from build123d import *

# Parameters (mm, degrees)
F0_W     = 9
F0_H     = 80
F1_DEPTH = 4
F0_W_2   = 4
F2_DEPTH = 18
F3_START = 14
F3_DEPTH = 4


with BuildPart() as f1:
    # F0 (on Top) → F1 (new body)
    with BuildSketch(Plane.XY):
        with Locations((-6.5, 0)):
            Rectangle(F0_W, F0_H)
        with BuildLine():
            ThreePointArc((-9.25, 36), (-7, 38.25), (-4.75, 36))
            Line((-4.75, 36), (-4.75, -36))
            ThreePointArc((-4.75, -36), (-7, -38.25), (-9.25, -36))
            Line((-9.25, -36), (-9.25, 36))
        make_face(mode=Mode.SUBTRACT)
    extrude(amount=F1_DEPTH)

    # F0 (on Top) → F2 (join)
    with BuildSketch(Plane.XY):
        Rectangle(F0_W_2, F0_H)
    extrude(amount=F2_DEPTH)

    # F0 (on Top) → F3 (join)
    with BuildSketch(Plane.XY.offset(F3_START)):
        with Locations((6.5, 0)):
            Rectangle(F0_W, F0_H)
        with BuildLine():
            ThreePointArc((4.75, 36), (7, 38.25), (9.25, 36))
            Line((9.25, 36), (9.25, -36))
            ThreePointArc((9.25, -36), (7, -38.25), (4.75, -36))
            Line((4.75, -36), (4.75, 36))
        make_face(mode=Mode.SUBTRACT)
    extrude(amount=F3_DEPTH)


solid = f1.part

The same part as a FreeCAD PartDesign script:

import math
import FreeCAD as App
import Part
import Sketcher
from FreeCAD import Vector
Q = App.Units.Quantity

doc = App.newDocument("Part")
body = doc.addObject("PartDesign::Body", "Body")

# Sketch on XY plane
sketch1 = body.newObject("Sketcher::SketchObject", "Sketch")
sketch1.AttachmentSupport = (doc.getObject("XY_Plane"), [""])
sketch1.MapMode = "FlatFace"
sketch1.addGeometry([
    Part.LineSegment(Vector(-11, 40, 0), Vector(-11, -40, 0)),  # 0
    Part.LineSegment(Vector(-11, -40, 0), Vector(-2, -40, 0)),  # 1
    Part.LineSegment(Vector(-2, -40, 0), Vector(-2, 40, 0)),  # 2
    Part.LineSegment(Vector(-2, 40, 0), Vector(-11, 40, 0)),  # 3
    Part.LineSegment(Vector(-9.2, -36, 0), Vector(-9.2, 36, 0)),  # 4
    Part.ArcOfCircle(Part.Circle(Vector(-7, 36, 0), Vector(0, 0, 1), 2.2), math.radians(0), math.radians(180)),  # 5
    Part.LineSegment(Vector(-4.8, 36, 0), Vector(-4.8, -36, 0)),  # 6
    Part.ArcOfCircle(Part.Circle(Vector(-7, -36, 0), Vector(0, 0, 1), 2.2), math.radians(180), math.radians(360)),  # 7
], False)
sketch1.addConstraint([
    Sketcher.Constraint("Coincident", 0, 2, 1, 1),
    Sketcher.Constraint("Coincident", 1, 2, 2, 1),
    Sketcher.Constraint("Coincident", 2, 2, 3, 1),
    Sketcher.Constraint("Coincident", 3, 2, 0, 1),
    Sketcher.Constraint("Tangent", 4, 2, 5, 2),
    Sketcher.Constraint("Tangent", 5, 1, 6, 1),
    Sketcher.Constraint("Tangent", 6, 2, 7, 2),
    Sketcher.Constraint("Tangent", 7, 1, 4, 1),
    Sketcher.Constraint("Vertical", 0),
    Sketcher.Constraint("Horizontal", 1),
    Sketcher.Constraint("Vertical", 2),
    Sketcher.Constraint("Horizontal", 3),
    Sketcher.Constraint("Vertical", 4),
    Sketcher.Constraint("Vertical", 6),
    Sketcher.Constraint("DistanceX", 1, 1, 1, 2, Q("9 mm")),
    Sketcher.Constraint("DistanceY", 0, 2, 0, 1, Q("80 mm")),
    Sketcher.Constraint("DistanceY", 4, 1, 4, 2, Q("72 mm")),
    Sketcher.Constraint("Radius", 5, Q("2.25 mm")),
    Sketcher.Constraint("DistanceX", 5, 3, -1, 1, Q("7 mm")),
    Sketcher.Constraint("DistanceY", -1, 1, 5, 3, Q("36 mm")),
    Sketcher.Constraint("DistanceX", 0, 2, -1, 1, Q("11 mm")),
    Sketcher.Constraint("DistanceY", 0, 2, -1, 1, Q("40 mm")),
])
pad1 = body.newObject("PartDesign::Pad", "Pad")
pad1.Profile = sketch1
pad1.Length = 4

# Sketch on XY plane
sketch2 = body.newObject("Sketcher::SketchObject", "Sketch001")
sketch2.AttachmentSupport = (doc.getObject("XY_Plane"), [""])
sketch2.MapMode = "FlatFace"
sketch2.addGeometry([
    Part.LineSegment(Vector(-2, 40, 0), Vector(-2, -40, 0)),
    Part.LineSegment(Vector(-2, -40, 0), Vector(2, -40, 0)),
    Part.LineSegment(Vector(2, -40, 0), Vector(2, 40, 0)),
    Part.LineSegment(Vector(2, 40, 0), Vector(-2, 40, 0)),
], False)
sketch2.addConstraint([
    Sketcher.Constraint("Coincident", 0, 2, 1, 1),
    Sketcher.Constraint("Coincident", 1, 2, 2, 1),
    Sketcher.Constraint("Coincident", 2, 2, 3, 1),
    Sketcher.Constraint("Coincident", 3, 2, 0, 1),
    Sketcher.Constraint("Vertical", 0),
    Sketcher.Constraint("Horizontal", 1),
    Sketcher.Constraint("Vertical", 2),
    Sketcher.Constraint("Horizontal", 3),
    Sketcher.Constraint("Symmetric", 0, 2, 2, 2, -1, 1),
    Sketcher.Constraint("DistanceX", 1, 1, 1, 2, Q("4 mm")),
    Sketcher.Constraint("DistanceY", 0, 2, 0, 1, Q("80 mm")),
])
pad2 = body.newObject("PartDesign::Pad", "Pad001")
pad2.Profile = sketch2
pad2.Length = 18

# Sketch on XY plane
sketch3 = body.newObject("Sketcher::SketchObject", "Sketch002")
sketch3.AttachmentSupport = (doc.getObject("XY_Plane"), [""])
sketch3.MapMode = "FlatFace"
sketch3.AttachmentOffset = App.Placement(Vector(0, 0, 14), App.Rotation())
sketch3.addGeometry([
    Part.LineSegment(Vector(2, 40, 0), Vector(2, -40, 0)),  # 0
    Part.LineSegment(Vector(2, -40, 0), Vector(11, -40, 0)),  # 1
    Part.LineSegment(Vector(11, -40, 0), Vector(11, 40, 0)),  # 2
    Part.LineSegment(Vector(11, 40, 0), Vector(2, 40, 0)),  # 3
    Part.LineSegment(Vector(4.8, -36, 0), Vector(4.8, 36, 0)),  # 4
    Part.ArcOfCircle(Part.Circle(Vector(7, 36, 0), Vector(0, 0, 1), 2.2), math.radians(0), math.radians(180)),  # 5
    Part.LineSegment(Vector(9.2, 36, 0), Vector(9.2, -36, 0)),  # 6
    Part.ArcOfCircle(Part.Circle(Vector(7, -36, 0), Vector(0, 0, 1), 2.2), math.radians(180), math.radians(360)),  # 7
], False)
sketch3.addConstraint([
    Sketcher.Constraint("Coincident", 0, 2, 1, 1),
    Sketcher.Constraint("Coincident", 1, 2, 2, 1),
    Sketcher.Constraint("Coincident", 2, 2, 3, 1),
    Sketcher.Constraint("Coincident", 3, 2, 0, 1),
    Sketcher.Constraint("Tangent", 4, 2, 5, 2),
    Sketcher.Constraint("Tangent", 5, 1, 6, 1),
    Sketcher.Constraint("Tangent", 6, 2, 7, 2),
    Sketcher.Constraint("Tangent", 7, 1, 4, 1),
    Sketcher.Constraint("Vertical", 0),
    Sketcher.Constraint("Horizontal", 1),
    Sketcher.Constraint("Vertical", 2),
    Sketcher.Constraint("Horizontal", 3),
    Sketcher.Constraint("Vertical", 4),
    Sketcher.Constraint("Vertical", 6),
    Sketcher.Constraint("DistanceX", 1, 1, 1, 2, Q("9 mm")),
    Sketcher.Constraint("DistanceY", 0, 2, 0, 1, Q("80 mm")),
    Sketcher.Constraint("DistanceY", 4, 1, 4, 2, Q("72 mm")),
    Sketcher.Constraint("Radius", 5, Q("2.25 mm")),
    Sketcher.Constraint("DistanceX", -1, 1, 5, 3, Q("7 mm")),
    Sketcher.Constraint("DistanceY", -1, 1, 5, 3, Q("36 mm")),
    Sketcher.Constraint("DistanceX", -1, 1, 0, 2, Q("2 mm")),
    Sketcher.Constraint("DistanceY", 0, 2, -1, 1, Q("40 mm")),
])
pad3 = body.newObject("PartDesign::Pad", "Pad002")
pad3.Profile = sketch3
pad3.Length = 4

doc.recompute()
